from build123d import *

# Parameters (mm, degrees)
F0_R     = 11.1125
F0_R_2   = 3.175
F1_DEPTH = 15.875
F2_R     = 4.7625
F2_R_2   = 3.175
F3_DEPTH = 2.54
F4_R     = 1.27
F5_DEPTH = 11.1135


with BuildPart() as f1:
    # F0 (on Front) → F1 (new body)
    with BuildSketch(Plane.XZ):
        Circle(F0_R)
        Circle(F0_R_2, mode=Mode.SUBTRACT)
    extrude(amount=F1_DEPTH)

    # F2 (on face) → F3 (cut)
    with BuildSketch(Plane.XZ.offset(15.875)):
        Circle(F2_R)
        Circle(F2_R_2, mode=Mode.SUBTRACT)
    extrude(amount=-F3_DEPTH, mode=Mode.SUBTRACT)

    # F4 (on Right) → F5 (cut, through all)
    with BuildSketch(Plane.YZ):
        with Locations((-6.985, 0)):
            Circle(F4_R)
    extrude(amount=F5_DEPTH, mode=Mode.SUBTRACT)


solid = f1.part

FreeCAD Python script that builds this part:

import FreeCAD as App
import Part
import Sketcher
from FreeCAD import Vector
Q = App.Units.Quantity

doc = App.newDocument("Part")
params = doc.addObject("Spreadsheet::Sheet", "Params")
for row, (alias, value) in enumerate([
    ("sketch1_diameter", "0.25 in"),
    ("sketch1_diameter2", "0.875 in"),
    ("pad1_length", "0.625 in"),
    ("sketch2_diameter", "0.25 in"),
    ("sketch2_diameter2", "0.375 in"),
    ("pocket1_length", "0.1 in"),
    ("sketch3_diameter", "0.1 in"),
], start=1):
    params.set(f"A{row}", alias)
    params.set(f"B{row}", "=" + value)
    params.setAlias(f"B{row}", alias)

body = doc.addObject("PartDesign::Body", "Body")

# Sketch on XZ plane
sketch1 = body.newObject("Sketcher::SketchObject", "Sketch")
sketch1.AttachmentSupport = (doc.getObject("XZ_Plane"), [""])
sketch1.MapMode = "FlatFace"
sketch1.addGeometry(Part.Circle(Vector(0, 0, 0), Vector(0, 0, 1), 11.1), False)
sketch1.addGeometry(Part.Circle(Vector(0, 0, 0), Vector(0, 0, 1), 3.2), False)
sketch1.addConstraint(Sketcher.Constraint("Coincident", 0, 3, -1, 1))
sketch1.addConstraint(Sketcher.Constraint("Coincident", 1, 3, -1, 1))
sketch1.addConstraint(Sketcher.Constraint("Diameter", 1, Q("0.25 in")))
sketch1.addConstraint(Sketcher.Constraint("Diameter", 0, Q("0.875 in")))
sketch1.setExpression("Constraints[2]", "Params.sketch1_diameter")
sketch1.setExpression("Constraints[3]", "Params.sketch1_diameter2")
pad1 = body.newObject("PartDesign::Pad", "Pad")
pad1.Profile = sketch1
pad1.setExpression("Length", "Params.pad1_length")

# Sketch on XZ plane
sketch2 = body.newObject("Sketcher::SketchObject", "Sketch001")
sketch2.AttachmentSupport = (doc.getObject("XZ_Plane"), [""])
sketch2.MapMode = "FlatFace"
sketch2.AttachmentOffset = App.Placement(Vector(0, 0, 0.625 * 25.4), App.Rotation())
sketch2.addGeometry(Part.Circle(Vector(0, 0, 0), Vector(0, 0, 1), 4.8), False)
sketch2.addGeometry(Part.Circle(Vector(0, 0, 0), Vector(0, 0, 1), 3.2), False)
sketch2.addConstraint(Sketcher.Constraint("Coincident", 0, 3, -1, 1))
sketch2.addConstraint(Sketcher.Constraint("Coincident", 1, 3, -1, 1))
sketch2.addConstraint(Sketcher.Constraint("Diameter", 1, Q("0.25 in")))
sketch2.addConstraint(Sketcher.Constraint("Diameter", 0, Q("0.375 in")))
sketch2.setExpression("Constraints[2]", "Params.sketch2_diameter")
sketch2.setExpression("Constraints[3]", "Params.sketch2_diameter2")
pocket1 = body.newObject("PartDesign::Pocket", "Pocket")
pocket1.Profile = sketch2
pocket1.setExpression("Length", "Params.pocket1_length")

# Sketch on YZ plane
sketch3 = body.newObject("Sketcher::SketchObject", "Sketch002")
sketch3.AttachmentSupport = (doc.getObject("YZ_Plane"), [""])
sketch3.MapMode = "FlatFace"
sketch3.addGeometry(Part.Circle(Vector(-7, 0, 0), Vector(0, 0, 1), 1.3), False)
sketch3.addConstraint(Sketcher.Constraint("PointOnObject", 0, 3, -1))
sketch3.addConstraint(Sketcher.Constraint("Diameter", 0, Q("0.1 in")))
sketch3.addConstraint(Sketcher.Constraint("DistanceX", 0, 3, -1, 1, Q("0.275 in")))
sketch3.setExpression("Constraints[1]", "Params.sketch3_diameter")
pocket2 = body.newObject("PartDesign::Pocket", "Pocket001")
pocket2.Profile = sketch3
pocket2.Type = "ThroughAll"
pocket2.Reversed = True

doc.recompute()
